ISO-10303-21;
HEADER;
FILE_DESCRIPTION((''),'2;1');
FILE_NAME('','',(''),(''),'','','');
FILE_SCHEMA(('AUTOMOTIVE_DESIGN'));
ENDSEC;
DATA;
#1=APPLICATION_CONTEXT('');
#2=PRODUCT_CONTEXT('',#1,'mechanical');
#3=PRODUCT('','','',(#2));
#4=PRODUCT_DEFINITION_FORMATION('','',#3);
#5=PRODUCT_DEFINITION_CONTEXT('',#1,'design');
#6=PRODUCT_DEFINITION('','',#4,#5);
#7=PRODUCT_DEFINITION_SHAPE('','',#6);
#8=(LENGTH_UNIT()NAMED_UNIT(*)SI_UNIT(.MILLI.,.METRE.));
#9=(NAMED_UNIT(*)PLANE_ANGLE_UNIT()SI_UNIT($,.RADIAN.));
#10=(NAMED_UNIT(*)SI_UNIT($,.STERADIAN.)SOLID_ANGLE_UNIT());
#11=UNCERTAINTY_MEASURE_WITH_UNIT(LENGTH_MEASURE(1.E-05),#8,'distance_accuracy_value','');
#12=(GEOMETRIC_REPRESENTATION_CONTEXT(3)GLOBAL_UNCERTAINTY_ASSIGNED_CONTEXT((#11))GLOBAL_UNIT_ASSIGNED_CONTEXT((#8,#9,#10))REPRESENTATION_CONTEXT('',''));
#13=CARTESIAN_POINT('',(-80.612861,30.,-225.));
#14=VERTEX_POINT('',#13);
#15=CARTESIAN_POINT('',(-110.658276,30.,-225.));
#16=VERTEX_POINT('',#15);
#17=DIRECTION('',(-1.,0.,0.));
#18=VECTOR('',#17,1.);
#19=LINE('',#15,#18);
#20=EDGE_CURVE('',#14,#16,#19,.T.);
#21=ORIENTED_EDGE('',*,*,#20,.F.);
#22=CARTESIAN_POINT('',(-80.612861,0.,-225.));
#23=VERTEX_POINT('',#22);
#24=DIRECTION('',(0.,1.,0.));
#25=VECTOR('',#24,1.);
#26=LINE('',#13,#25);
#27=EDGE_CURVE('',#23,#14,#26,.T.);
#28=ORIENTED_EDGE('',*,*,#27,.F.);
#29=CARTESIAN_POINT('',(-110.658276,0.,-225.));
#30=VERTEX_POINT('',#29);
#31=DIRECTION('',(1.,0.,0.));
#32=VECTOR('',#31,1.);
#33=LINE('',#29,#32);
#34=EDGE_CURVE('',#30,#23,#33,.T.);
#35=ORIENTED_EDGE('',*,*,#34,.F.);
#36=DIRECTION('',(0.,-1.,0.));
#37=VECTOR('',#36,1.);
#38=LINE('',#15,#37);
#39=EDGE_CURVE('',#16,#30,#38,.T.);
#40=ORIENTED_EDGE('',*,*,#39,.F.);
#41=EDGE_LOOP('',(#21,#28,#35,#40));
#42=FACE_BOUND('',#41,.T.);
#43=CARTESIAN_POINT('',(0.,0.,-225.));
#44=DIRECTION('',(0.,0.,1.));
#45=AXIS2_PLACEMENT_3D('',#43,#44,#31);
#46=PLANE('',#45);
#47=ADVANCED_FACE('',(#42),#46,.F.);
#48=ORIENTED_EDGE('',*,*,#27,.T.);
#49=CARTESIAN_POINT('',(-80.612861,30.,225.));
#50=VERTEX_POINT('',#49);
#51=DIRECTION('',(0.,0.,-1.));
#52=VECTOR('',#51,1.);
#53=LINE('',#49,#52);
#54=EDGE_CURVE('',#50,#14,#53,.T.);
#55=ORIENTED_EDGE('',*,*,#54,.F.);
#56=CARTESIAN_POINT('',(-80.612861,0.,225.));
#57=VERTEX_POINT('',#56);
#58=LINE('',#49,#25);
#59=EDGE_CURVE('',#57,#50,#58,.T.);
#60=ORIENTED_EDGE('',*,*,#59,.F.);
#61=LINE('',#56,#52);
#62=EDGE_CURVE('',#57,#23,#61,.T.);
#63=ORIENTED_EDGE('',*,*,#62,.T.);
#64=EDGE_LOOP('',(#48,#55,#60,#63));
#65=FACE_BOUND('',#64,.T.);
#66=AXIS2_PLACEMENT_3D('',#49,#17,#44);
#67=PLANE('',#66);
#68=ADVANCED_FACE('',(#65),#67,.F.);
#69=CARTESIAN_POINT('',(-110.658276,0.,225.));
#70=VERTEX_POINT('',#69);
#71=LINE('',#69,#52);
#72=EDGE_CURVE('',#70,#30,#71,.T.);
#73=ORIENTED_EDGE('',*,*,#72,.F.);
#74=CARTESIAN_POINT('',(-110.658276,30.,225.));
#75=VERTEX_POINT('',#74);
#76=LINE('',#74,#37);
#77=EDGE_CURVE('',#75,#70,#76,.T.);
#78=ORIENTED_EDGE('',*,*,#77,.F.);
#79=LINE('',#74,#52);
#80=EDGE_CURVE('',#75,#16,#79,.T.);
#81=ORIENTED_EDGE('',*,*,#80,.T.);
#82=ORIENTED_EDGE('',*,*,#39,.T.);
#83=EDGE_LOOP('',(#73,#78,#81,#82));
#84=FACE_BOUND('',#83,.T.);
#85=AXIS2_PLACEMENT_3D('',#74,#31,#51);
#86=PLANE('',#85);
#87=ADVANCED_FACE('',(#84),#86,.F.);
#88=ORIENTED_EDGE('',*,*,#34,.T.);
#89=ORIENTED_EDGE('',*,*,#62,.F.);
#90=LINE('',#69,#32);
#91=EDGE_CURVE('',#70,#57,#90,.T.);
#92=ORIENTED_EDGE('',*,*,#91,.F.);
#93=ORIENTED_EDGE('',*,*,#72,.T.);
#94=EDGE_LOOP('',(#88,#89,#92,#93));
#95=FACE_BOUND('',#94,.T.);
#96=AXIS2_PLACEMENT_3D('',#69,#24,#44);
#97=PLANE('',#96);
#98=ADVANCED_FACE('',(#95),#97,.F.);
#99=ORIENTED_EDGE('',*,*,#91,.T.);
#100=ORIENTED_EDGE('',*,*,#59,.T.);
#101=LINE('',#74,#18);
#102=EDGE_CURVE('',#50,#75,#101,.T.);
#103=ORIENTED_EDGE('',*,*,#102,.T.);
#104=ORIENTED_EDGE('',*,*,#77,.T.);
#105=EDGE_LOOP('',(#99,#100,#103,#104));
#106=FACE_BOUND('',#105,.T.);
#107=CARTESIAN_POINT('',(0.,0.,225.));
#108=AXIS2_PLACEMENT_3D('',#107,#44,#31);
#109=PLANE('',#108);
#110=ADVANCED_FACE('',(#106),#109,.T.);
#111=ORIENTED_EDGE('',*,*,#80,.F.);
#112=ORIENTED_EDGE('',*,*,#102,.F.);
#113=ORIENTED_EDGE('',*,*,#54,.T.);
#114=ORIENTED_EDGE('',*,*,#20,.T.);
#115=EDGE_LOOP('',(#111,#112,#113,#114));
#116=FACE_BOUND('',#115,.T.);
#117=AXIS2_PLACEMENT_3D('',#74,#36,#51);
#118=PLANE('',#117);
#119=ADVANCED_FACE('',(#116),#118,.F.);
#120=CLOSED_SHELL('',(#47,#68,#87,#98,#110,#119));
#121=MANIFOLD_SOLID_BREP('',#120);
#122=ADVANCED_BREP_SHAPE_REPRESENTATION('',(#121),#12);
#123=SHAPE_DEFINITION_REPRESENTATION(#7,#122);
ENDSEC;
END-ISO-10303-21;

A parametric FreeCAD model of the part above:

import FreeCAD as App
import Part
import Sketcher

V = App.Vector

doc = App.newDocument("Part")
body = doc.addObject("PartDesign::Body", "Body")

# Sketch on XY plane
sketch1 = body.newObject("Sketcher::SketchObject", "Sketch")
sketch1.AttachmentSupport = (doc.getObject("XY_Plane"), [""])
sketch1.MapMode = "FlatFace"
sketch1.addGeometry([
    Part.LineSegment(V(-111, 30, 0), V(-111, 0, 0)),
    Part.LineSegment(V(-111, 0, 0), V(-81, 0, 0)),
    Part.LineSegment(V(-81, 0, 0), V(-81, 30, 0)),
    Part.LineSegment(V(-81, 30, 0), V(-111, 30, 0)),
], False)
sketch1.addConstraint([
    Sketcher.Constraint("Coincident", 0, 2, 1, 1),
    Sketcher.Constraint("Coincident", 1, 2, 2, 1),
    Sketcher.Constraint("Coincident", 2, 2, 3, 1),
    Sketcher.Constraint("Coincident", 3, 2, 0, 1),
    Sketcher.Constraint("Vertical", 0),
    Sketcher.Constraint("Horizontal", 1),
    Sketcher.Constraint("Vertical", 2),
    Sketcher.Constraint("Horizontal", 3),
    Sketcher.Constraint("PointOnObject", 0, 2, -1),
    Sketcher.Constraint("DistanceY", 0, 2, 0, 1, 30.0),
    Sketcher.Constraint("DistanceX", 1, 1, 1, 2, 30.045415),
    Sketcher.Constraint("DistanceX", 1, 2, -1, 1, 80.612861),
])
pad1 = body.newObject("PartDesign::Pad", "Pad")
pad1.Profile = sketch1
pad1.Length = 450
pad1.Midplane = True

doc.recompute()
